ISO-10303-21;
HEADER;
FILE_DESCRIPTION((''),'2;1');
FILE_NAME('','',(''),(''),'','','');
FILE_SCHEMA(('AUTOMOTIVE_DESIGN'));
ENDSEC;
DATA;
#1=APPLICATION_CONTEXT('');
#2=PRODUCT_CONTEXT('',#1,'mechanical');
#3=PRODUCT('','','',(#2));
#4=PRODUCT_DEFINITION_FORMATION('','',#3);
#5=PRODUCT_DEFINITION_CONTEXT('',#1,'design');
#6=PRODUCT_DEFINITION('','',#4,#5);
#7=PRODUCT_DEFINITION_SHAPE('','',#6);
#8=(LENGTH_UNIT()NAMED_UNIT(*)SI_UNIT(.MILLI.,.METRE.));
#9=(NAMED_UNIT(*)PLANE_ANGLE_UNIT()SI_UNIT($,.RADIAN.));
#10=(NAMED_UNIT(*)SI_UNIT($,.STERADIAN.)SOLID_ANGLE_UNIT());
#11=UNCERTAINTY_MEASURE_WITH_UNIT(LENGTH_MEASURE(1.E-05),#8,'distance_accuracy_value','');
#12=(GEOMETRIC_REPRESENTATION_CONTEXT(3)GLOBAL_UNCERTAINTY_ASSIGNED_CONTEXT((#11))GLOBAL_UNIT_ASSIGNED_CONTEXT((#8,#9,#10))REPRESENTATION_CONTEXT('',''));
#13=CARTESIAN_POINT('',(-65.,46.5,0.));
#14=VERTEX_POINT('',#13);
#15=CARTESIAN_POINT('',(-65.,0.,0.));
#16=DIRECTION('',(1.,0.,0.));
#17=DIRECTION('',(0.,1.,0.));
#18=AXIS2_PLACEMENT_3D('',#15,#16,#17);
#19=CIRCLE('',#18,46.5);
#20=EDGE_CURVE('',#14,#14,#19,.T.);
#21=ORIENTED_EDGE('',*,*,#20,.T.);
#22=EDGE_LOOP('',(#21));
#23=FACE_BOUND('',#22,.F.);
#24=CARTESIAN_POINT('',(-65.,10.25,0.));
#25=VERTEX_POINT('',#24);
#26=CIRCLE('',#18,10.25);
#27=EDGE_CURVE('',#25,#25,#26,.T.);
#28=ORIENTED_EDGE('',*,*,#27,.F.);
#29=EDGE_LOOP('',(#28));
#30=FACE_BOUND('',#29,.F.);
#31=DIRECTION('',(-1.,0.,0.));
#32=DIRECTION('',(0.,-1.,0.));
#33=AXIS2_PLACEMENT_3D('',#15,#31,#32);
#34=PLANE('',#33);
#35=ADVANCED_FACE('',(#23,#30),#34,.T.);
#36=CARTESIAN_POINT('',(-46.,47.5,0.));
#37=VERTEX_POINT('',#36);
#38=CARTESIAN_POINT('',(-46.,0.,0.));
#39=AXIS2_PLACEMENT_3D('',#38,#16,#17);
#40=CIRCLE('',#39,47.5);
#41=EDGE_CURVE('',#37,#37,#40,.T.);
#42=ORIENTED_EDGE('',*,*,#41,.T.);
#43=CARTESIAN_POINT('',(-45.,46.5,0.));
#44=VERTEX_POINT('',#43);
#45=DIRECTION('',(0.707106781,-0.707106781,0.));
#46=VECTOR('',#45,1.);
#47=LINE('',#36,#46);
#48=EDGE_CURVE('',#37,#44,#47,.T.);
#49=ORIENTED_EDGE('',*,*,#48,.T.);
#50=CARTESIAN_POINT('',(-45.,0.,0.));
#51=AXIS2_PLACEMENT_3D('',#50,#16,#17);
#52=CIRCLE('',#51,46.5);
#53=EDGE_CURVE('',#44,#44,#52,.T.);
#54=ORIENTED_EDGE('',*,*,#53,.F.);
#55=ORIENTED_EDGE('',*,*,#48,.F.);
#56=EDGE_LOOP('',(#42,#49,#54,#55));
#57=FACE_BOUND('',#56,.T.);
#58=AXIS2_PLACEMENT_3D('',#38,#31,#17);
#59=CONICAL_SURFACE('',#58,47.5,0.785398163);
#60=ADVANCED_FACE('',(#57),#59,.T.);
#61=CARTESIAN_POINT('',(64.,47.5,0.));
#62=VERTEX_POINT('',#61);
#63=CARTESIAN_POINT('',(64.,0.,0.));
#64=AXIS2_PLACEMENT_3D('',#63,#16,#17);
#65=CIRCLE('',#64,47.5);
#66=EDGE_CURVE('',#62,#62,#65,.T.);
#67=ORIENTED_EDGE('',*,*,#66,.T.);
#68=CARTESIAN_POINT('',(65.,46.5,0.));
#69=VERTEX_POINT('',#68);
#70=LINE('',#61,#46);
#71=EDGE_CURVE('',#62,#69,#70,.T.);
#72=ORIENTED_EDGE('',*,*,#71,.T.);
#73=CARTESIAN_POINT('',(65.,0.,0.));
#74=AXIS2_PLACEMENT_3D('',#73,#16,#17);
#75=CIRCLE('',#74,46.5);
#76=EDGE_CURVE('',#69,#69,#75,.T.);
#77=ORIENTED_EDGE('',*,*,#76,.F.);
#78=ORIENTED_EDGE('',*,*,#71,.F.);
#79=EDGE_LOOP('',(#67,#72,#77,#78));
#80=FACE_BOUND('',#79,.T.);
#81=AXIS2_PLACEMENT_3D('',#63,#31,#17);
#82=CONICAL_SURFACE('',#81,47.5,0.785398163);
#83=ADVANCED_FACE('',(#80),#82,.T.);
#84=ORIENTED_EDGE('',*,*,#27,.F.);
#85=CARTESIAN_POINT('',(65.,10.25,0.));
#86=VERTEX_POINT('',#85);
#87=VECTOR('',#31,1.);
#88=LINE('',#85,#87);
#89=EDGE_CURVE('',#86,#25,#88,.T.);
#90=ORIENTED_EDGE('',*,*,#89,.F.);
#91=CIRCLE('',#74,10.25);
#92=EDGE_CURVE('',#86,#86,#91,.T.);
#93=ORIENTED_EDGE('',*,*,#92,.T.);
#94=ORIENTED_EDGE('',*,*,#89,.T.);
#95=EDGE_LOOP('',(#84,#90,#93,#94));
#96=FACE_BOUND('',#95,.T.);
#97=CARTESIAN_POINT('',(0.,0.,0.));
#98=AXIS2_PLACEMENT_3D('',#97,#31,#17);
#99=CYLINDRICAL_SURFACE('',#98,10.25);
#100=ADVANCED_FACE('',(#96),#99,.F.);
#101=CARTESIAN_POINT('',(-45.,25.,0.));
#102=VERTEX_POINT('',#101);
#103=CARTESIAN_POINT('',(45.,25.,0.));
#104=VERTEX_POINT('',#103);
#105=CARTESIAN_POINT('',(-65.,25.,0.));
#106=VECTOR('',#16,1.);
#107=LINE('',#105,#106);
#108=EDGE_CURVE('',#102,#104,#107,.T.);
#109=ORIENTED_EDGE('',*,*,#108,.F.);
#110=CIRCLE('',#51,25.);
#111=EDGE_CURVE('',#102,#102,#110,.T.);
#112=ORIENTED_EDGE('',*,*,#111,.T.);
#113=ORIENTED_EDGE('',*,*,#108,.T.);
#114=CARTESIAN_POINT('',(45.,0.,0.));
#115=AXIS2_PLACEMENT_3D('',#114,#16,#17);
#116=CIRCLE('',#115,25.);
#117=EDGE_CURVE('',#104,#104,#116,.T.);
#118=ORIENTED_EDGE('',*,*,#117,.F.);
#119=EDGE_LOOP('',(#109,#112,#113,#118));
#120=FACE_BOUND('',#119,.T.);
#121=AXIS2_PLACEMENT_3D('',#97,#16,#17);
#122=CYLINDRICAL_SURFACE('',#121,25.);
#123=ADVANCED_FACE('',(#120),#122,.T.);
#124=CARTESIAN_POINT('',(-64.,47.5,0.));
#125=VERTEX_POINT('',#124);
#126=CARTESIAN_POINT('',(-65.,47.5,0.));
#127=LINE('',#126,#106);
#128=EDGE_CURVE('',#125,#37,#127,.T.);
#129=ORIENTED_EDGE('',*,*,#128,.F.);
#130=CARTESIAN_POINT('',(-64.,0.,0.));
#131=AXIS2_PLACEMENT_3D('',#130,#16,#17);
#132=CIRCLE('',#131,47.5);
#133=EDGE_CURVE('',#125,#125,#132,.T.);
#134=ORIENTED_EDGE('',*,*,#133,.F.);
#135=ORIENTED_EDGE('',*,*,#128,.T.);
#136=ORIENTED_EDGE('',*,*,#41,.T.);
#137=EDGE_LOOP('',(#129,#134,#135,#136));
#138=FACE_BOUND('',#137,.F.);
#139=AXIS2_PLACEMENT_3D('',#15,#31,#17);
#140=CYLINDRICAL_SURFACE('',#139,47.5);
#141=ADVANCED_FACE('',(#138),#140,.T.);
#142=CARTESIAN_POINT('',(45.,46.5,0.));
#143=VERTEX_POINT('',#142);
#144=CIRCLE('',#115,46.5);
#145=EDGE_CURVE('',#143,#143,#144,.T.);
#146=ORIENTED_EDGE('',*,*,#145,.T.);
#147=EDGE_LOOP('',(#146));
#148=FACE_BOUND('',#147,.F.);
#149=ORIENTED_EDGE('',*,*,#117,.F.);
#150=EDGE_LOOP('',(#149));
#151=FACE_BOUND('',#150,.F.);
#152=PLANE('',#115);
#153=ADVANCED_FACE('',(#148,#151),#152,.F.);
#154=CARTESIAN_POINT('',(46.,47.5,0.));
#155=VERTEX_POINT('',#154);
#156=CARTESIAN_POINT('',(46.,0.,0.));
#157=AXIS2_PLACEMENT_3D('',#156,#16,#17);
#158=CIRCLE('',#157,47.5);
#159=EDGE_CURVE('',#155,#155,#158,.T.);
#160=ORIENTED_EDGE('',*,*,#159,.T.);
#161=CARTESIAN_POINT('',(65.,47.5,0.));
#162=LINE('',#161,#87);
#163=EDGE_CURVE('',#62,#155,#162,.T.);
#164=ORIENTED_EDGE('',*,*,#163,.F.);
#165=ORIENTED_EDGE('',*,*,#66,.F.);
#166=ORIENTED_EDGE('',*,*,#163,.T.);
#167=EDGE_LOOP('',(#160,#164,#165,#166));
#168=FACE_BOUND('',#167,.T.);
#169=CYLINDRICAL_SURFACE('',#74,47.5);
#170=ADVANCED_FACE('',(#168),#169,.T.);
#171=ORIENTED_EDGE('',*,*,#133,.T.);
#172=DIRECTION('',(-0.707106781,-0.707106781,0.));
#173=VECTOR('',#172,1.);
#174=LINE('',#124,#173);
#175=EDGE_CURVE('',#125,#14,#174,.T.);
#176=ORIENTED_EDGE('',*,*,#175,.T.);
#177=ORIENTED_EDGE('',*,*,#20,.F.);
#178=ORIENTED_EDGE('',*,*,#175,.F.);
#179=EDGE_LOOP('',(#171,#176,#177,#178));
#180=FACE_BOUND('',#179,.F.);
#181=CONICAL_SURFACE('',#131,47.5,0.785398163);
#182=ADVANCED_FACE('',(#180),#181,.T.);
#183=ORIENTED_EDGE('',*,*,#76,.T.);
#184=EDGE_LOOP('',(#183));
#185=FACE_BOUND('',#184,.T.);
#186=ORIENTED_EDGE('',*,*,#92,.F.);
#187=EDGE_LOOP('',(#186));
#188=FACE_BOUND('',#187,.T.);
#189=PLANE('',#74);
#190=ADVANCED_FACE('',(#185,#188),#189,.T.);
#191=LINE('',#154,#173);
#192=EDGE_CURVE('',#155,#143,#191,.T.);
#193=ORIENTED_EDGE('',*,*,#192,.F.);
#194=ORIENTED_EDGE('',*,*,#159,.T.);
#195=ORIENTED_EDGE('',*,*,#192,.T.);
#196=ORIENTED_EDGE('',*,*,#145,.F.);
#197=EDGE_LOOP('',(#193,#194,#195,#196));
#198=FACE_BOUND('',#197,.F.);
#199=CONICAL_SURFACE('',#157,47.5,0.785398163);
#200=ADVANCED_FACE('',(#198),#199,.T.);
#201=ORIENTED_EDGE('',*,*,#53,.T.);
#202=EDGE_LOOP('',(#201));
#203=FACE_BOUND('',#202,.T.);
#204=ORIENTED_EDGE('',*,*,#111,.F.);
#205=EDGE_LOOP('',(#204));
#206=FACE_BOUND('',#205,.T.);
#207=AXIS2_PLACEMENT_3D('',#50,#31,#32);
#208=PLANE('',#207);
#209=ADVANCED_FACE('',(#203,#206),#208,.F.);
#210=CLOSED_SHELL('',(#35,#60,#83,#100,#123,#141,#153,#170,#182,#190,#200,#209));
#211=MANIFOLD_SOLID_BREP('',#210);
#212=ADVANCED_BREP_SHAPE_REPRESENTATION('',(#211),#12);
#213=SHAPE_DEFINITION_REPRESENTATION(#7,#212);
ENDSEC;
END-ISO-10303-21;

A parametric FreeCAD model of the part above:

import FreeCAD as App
import Part
import Sketcher
from FreeCAD import Vector


def edges_at(feature, points):
    """Names of the edges that pass closest to the given points."""
    edges = feature.Shape.Edges
    near = lambda p: min(range(len(edges)), key=lambda i: edges[i].distToShape(Part.Vertex(*p))[0])
    return sorted({f"Edge{near(p) + 1}" for p in points})

doc = App.newDocument("Part")
body = doc.addObject("PartDesign::Body", "Body")

sketch1 = doc.addObject("Sketcher::SketchObject", "Sketch")
body.addObject(sketch1)
sketch1.AttachmentSupport = (doc.YZ_Plane, [""])
sketch1.MapMode = "FlatFace"
sketch1.addGeometry([
    Part.Circle(Vector(0, 0, 0), Vector(0, 0, 1), 25),
    Part.Circle(Vector(0, 0, 0), Vector(0, 0, 1), 10.25),
], False)
sketch1.addConstraint([
    Sketcher.Constraint("Coincident", 0, 3, -1, 1),
    Sketcher.Constraint("Coincident", 1, 3, -1, 1),
    Sketcher.Constraint("Diameter", 0, 50.0),
    Sketcher.Constraint("Diameter", 1, 20.5),
])
pad1 = doc.addObject("PartDesign::Pad", "Pad")
body.addObject(pad1)
pad1.Profile = sketch1
pad1.Length = 130
pad1.Midplane = True

sketch2 = doc.addObject("Sketcher::SketchObject", "Sketch001")
body.addObject(sketch2)
sketch2.AttachmentSupport = (doc.YZ_Plane, [""])
sketch2.MapMode = "FlatFace"
sketch2.AttachmentOffset = App.Placement(Vector(0, 0, 65), App.Rotation())
sketch2.addGeometry([
    Part.Circle(Vector(0, 0, 0), Vector(0, 0, 1), 47.5),
    Part.Circle(Vector(0, 0, 0), Vector(0, 0, 1), 25),
], False)
sketch2.addConstraint([
    Sketcher.Constraint("Coincident", 0, 3, -1, 1),
    Sketcher.Constraint("Coincident", 1, 3, -1, 1),
    Sketcher.Constraint("Diameter", 0, 95.0),
    Sketcher.Constraint("Diameter", 1, 50.0),
])
pad2 = doc.addObject("PartDesign::Pad", "Pad001")
body.addObject(pad2)
pad2.Profile = sketch2
pad2.Length = 20
pad2.Reversed = True
doc.recompute()

chamfer = doc.addObject("PartDesign::Chamfer", "Chamfer")
body.addObject(chamfer)
chamfer.Base = (pad2, edges_at(pad2, [(55, 47.5, 0), (65, -47.5, 0), (45, -47.5, 0)]))
chamfer.Size = 1
body2 = doc.addObject("PartDesign::Body", "Body001")
doc.recompute()

body2.BaseFeature = body
doc.recompute()

mirroring = doc.addObject("Part::Mirroring", "Mirroring")
mirroring.Source = body
mirroring.Base = Vector(0, 0, 0)
mirroring.Normal = Vector(1, 0, 0)
body3 = doc.addObject("PartDesign::Body", "Body002")
body3.BaseFeature = mirroring
boolean = doc.addObject("PartDesign::Boolean", "Boolean")
body2.addObject(boolean)
boolean.Type = "Fuse"
boolean.addObjects([body3])
doc.recompute()
mirroring.Visibility = False

doc.recompute()
